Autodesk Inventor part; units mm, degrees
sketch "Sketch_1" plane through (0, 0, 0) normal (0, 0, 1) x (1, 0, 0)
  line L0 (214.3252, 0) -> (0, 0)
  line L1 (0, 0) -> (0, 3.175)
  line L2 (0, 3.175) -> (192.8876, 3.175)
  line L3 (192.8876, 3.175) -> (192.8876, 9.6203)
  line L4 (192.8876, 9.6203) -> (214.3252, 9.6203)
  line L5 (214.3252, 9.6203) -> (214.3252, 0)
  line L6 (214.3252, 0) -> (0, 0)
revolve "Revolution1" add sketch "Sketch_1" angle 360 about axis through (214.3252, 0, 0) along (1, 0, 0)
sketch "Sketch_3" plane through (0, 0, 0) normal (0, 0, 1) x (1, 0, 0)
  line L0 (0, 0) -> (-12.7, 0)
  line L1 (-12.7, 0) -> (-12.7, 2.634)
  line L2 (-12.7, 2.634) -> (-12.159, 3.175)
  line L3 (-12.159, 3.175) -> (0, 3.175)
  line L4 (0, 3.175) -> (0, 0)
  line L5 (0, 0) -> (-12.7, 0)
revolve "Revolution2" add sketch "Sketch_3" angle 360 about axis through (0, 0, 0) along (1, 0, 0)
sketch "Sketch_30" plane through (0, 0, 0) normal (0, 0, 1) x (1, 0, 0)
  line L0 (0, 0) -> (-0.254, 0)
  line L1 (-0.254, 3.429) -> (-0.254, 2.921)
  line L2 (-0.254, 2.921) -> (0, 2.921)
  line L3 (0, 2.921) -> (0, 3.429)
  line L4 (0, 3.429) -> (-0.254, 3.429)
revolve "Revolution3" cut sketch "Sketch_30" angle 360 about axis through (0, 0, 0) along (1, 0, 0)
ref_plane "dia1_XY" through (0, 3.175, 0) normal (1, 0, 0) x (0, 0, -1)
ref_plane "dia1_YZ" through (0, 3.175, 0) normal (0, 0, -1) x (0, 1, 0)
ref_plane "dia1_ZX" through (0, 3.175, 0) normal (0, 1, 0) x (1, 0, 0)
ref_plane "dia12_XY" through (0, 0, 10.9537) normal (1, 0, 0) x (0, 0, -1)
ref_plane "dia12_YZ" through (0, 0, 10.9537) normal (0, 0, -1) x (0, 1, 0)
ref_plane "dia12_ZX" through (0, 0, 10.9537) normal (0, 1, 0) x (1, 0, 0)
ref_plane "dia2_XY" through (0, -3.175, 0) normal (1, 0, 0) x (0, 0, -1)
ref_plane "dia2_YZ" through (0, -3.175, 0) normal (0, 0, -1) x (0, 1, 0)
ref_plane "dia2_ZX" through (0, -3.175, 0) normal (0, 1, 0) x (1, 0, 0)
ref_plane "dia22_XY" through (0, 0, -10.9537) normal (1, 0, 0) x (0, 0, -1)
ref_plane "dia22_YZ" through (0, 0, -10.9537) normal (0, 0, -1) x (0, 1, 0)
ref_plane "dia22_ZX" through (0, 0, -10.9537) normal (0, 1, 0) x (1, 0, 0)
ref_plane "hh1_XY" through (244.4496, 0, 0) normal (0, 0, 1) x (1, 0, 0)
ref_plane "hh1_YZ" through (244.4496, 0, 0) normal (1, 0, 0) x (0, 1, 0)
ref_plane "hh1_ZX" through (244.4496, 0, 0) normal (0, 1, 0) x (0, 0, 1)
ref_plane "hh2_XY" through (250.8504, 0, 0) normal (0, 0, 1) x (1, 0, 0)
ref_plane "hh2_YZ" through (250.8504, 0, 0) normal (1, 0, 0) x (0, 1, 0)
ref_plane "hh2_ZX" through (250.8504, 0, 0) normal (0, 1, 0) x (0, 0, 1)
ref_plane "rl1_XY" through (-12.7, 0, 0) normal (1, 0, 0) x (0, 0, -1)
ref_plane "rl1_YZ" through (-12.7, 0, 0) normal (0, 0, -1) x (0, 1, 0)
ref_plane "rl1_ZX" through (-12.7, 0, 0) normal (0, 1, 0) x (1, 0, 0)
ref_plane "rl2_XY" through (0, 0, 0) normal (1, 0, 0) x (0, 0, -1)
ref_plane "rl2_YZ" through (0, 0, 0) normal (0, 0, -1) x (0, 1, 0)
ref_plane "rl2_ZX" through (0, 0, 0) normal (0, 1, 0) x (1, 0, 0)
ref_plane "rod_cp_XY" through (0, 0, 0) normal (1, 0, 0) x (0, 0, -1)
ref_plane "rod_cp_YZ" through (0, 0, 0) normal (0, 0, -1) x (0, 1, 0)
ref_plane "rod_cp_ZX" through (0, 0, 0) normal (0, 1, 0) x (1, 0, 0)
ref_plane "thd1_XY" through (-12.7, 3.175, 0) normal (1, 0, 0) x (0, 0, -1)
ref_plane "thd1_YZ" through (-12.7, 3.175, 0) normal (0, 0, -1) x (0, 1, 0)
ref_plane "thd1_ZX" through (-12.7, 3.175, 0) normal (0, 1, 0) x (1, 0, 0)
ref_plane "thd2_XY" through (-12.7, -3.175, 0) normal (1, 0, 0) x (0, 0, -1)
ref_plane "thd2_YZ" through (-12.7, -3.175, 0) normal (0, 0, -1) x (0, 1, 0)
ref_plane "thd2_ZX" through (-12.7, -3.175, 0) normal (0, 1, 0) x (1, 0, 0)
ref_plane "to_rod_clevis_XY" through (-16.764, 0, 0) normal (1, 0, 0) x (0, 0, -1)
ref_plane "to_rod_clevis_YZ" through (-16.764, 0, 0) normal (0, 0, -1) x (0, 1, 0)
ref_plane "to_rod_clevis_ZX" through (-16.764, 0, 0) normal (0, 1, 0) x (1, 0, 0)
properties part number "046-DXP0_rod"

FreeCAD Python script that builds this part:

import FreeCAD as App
import Part
import Sketcher

V = App.Vector
Q = App.Units.Quantity


def add_polygon(sketch, points):
    """Adds a closed chain of lines whose ends are joined by coincident constraints."""
    first, n = sketch.GeometryCount, len(points)
    for a, b in zip(points, points[1:] + points[:1]):
        sketch.addGeometry(Part.LineSegment(App.Vector(*a, 0), App.Vector(*b, 0)), False)
    for i in range(n):
        sketch.addConstraint(Sketcher.Constraint("Coincident", first + i, 2, first + (i + 1) % n, 1))

doc = App.newDocument("Part")
params = doc.addObject("Spreadsheet::Sheet", "Params")
for row, (alias, value) in enumerate([
    ("sketch1_width", "8.438 in"),
    ("sketch1_width2", "0.844 in"),
    ("sketch1_height", "0.125 in"),
    ("revolution_angle", "360 deg"),
    ("sketch2_width", "0.5 in"),
    ("sketch2_height", "0.125 in"),
    ("revolution2_angle", "360 deg"),
    ("sketch3_width", "0.01 in"),
    ("sketch3_height", "0.02 in"),
    ("groove_angle", "360 deg"),
], start=1):
    params.set(f"A{row}", alias)
    params.set(f"B{row}", "=" + value)
    params.setAlias(f"B{row}", alias)

body = doc.addObject("PartDesign::Body", "Body")

# Sketch on XY plane
sketch1 = doc.addObject("Sketcher::SketchObject", "Sketch")
body.addObject(sketch1)
sketch1.AttachmentSupport = (doc.XY_Plane, [""])
sketch1.MapMode = "FlatFace"
add_polygon(sketch1, [(0, 0), (214.3, 0), (214.3, 9.6), (192.9, 9.6), (192.9, 3.2), (0, 3.2)])  # lines 0-5
sketch1.addConstraint(Sketcher.Constraint("Horizontal", 0))
sketch1.addConstraint(Sketcher.Constraint("Vertical", 1))
sketch1.addConstraint(Sketcher.Constraint("Horizontal", 2))
sketch1.addConstraint(Sketcher.Constraint("Vertical", 3))
sketch1.addConstraint(Sketcher.Constraint("Horizontal", 4))
sketch1.addConstraint(Sketcher.Constraint("Vertical", 5))
sketch1.addConstraint(Sketcher.Constraint("Coincident", 5, 2, -1, 1))
sketch1.addConstraint(Sketcher.Constraint("DistanceX", 0, 1, 0, 2, Q("8.438 in")))
sketch1.addConstraint(Sketcher.Constraint("DistanceX", 2, 2, 2, 1, Q("0.844 in")))
sketch1.addConstraint(Sketcher.Constraint("DistanceY", 5, 2, 5, 1, Q("0.125 in")))
sketch1.addConstraint(Sketcher.Constraint("DistanceY", 1, 1, 1, 2, 9.6203))
sketch1.setExpression("Constraints[13]", "Params.sketch1_width")
sketch1.setExpression("Constraints[14]", "Params.sketch1_width2")
sketch1.setExpression("Constraints[15]", "Params.sketch1_height")
revolution = doc.addObject("PartDesign::Revolution", "Revolution")
body.addObject(revolution)
revolution.Profile = sketch1
revolution.ReferenceAxis = (sketch1, ["H_Axis"])
revolution.setExpression("Angle", "Params.revolution_angle")

# Sketch on XY plane
sketch2 = doc.addObject("Sketcher::SketchObject", "Sketch001")
body.addObject(sketch2)
sketch2.AttachmentSupport = (doc.XY_Plane, [""])
sketch2.MapMode = "FlatFace"
add_polygon(sketch2, [(-12.7, 0), (0, 0), (0, 3.2), (-12.2, 3.2), (-12.7, 2.6)])  # lines 0-4
sketch2.addConstraint(Sketcher.Constraint("Horizontal", 0))
sketch2.addConstraint(Sketcher.Constraint("Vertical", 1))
sketch2.addConstraint(Sketcher.Constraint("Horizontal", 2))
sketch2.addConstraint(Sketcher.Constraint("Vertical", 4))
sketch2.addConstraint(Sketcher.Constraint("Coincident", 0, 2, -1, 1))
sketch2.addConstraint(Sketcher.Constraint("DistanceX", 0, 1, 0, 2, Q("0.5 in")))
sketch2.addConstraint(Sketcher.Constraint("Angle", 3, Q("-135 deg")))
sketch2.addConstraint(Sketcher.Constraint("DistanceY", 1, 1, 1, 2, Q("0.125 in")))
sketch2.addConstraint(Sketcher.Constraint("DistanceX", 2, 2, 2, 1, Q("0.4787 in")))
sketch2.setExpression("Constraints[10]", "Params.sketch2_width")
sketch2.setExpression("Constraints[12]", "Params.sketch2_height")
revolution2 = doc.addObject("PartDesign::Revolution", "Revolution001")
body.addObject(revolution2)
revolution2.Profile = sketch2
revolution2.ReferenceAxis = (sketch2, ["H_Axis"])
revolution2.setExpression("Angle", "Params.revolution2_angle")

# Sketch on XY plane
sketch3 = doc.addObject("Sketcher::SketchObject", "Sketch002")
body.addObject(sketch3)
sketch3.AttachmentSupport = (doc.XY_Plane, [""])
sketch3.MapMode = "FlatFace"
add_polygon(sketch3, [(0, 3.43), (-0.25, 3.43), (-0.25, 2.92), (0, 2.92)])  # lines 0-3
sketch3.addConstraint(Sketcher.Constraint("Horizontal", 0))
sketch3.addConstraint(Sketcher.Constraint("Vertical", 1))
sketch3.addConstraint(Sketcher.Constraint("Horizontal", 2))
sketch3.addConstraint(Sketcher.Constraint("Vertical", 3))
sketch3.addConstraint(Sketcher.Constraint("PointOnObject", 2, 2, -2))
sketch3.addConstraint(Sketcher.Constraint("DistanceX", 0, 2, 0, 1, Q("0.01 in")))
sketch3.addConstraint(Sketcher.Constraint("DistanceY", 1, 2, 1, 1, Q("0.02 in")))
sketch3.addConstraint(Sketcher.Constraint("DistanceY", -1, 1, 0, 2, Q("0.135 in")))
sketch3.setExpression("Constraints[9]", "Params.sketch3_width")
sketch3.setExpression("Constraints[10]", "Params.sketch3_height")
groove = doc.addObject("PartDesign::Groove", "Groove")
body.addObject(groove)
groove.Profile = sketch3
groove.ReferenceAxis = (sketch3, ["H_Axis"])
groove.setExpression("Angle", "Params.groove_angle")

doc.recompute()
